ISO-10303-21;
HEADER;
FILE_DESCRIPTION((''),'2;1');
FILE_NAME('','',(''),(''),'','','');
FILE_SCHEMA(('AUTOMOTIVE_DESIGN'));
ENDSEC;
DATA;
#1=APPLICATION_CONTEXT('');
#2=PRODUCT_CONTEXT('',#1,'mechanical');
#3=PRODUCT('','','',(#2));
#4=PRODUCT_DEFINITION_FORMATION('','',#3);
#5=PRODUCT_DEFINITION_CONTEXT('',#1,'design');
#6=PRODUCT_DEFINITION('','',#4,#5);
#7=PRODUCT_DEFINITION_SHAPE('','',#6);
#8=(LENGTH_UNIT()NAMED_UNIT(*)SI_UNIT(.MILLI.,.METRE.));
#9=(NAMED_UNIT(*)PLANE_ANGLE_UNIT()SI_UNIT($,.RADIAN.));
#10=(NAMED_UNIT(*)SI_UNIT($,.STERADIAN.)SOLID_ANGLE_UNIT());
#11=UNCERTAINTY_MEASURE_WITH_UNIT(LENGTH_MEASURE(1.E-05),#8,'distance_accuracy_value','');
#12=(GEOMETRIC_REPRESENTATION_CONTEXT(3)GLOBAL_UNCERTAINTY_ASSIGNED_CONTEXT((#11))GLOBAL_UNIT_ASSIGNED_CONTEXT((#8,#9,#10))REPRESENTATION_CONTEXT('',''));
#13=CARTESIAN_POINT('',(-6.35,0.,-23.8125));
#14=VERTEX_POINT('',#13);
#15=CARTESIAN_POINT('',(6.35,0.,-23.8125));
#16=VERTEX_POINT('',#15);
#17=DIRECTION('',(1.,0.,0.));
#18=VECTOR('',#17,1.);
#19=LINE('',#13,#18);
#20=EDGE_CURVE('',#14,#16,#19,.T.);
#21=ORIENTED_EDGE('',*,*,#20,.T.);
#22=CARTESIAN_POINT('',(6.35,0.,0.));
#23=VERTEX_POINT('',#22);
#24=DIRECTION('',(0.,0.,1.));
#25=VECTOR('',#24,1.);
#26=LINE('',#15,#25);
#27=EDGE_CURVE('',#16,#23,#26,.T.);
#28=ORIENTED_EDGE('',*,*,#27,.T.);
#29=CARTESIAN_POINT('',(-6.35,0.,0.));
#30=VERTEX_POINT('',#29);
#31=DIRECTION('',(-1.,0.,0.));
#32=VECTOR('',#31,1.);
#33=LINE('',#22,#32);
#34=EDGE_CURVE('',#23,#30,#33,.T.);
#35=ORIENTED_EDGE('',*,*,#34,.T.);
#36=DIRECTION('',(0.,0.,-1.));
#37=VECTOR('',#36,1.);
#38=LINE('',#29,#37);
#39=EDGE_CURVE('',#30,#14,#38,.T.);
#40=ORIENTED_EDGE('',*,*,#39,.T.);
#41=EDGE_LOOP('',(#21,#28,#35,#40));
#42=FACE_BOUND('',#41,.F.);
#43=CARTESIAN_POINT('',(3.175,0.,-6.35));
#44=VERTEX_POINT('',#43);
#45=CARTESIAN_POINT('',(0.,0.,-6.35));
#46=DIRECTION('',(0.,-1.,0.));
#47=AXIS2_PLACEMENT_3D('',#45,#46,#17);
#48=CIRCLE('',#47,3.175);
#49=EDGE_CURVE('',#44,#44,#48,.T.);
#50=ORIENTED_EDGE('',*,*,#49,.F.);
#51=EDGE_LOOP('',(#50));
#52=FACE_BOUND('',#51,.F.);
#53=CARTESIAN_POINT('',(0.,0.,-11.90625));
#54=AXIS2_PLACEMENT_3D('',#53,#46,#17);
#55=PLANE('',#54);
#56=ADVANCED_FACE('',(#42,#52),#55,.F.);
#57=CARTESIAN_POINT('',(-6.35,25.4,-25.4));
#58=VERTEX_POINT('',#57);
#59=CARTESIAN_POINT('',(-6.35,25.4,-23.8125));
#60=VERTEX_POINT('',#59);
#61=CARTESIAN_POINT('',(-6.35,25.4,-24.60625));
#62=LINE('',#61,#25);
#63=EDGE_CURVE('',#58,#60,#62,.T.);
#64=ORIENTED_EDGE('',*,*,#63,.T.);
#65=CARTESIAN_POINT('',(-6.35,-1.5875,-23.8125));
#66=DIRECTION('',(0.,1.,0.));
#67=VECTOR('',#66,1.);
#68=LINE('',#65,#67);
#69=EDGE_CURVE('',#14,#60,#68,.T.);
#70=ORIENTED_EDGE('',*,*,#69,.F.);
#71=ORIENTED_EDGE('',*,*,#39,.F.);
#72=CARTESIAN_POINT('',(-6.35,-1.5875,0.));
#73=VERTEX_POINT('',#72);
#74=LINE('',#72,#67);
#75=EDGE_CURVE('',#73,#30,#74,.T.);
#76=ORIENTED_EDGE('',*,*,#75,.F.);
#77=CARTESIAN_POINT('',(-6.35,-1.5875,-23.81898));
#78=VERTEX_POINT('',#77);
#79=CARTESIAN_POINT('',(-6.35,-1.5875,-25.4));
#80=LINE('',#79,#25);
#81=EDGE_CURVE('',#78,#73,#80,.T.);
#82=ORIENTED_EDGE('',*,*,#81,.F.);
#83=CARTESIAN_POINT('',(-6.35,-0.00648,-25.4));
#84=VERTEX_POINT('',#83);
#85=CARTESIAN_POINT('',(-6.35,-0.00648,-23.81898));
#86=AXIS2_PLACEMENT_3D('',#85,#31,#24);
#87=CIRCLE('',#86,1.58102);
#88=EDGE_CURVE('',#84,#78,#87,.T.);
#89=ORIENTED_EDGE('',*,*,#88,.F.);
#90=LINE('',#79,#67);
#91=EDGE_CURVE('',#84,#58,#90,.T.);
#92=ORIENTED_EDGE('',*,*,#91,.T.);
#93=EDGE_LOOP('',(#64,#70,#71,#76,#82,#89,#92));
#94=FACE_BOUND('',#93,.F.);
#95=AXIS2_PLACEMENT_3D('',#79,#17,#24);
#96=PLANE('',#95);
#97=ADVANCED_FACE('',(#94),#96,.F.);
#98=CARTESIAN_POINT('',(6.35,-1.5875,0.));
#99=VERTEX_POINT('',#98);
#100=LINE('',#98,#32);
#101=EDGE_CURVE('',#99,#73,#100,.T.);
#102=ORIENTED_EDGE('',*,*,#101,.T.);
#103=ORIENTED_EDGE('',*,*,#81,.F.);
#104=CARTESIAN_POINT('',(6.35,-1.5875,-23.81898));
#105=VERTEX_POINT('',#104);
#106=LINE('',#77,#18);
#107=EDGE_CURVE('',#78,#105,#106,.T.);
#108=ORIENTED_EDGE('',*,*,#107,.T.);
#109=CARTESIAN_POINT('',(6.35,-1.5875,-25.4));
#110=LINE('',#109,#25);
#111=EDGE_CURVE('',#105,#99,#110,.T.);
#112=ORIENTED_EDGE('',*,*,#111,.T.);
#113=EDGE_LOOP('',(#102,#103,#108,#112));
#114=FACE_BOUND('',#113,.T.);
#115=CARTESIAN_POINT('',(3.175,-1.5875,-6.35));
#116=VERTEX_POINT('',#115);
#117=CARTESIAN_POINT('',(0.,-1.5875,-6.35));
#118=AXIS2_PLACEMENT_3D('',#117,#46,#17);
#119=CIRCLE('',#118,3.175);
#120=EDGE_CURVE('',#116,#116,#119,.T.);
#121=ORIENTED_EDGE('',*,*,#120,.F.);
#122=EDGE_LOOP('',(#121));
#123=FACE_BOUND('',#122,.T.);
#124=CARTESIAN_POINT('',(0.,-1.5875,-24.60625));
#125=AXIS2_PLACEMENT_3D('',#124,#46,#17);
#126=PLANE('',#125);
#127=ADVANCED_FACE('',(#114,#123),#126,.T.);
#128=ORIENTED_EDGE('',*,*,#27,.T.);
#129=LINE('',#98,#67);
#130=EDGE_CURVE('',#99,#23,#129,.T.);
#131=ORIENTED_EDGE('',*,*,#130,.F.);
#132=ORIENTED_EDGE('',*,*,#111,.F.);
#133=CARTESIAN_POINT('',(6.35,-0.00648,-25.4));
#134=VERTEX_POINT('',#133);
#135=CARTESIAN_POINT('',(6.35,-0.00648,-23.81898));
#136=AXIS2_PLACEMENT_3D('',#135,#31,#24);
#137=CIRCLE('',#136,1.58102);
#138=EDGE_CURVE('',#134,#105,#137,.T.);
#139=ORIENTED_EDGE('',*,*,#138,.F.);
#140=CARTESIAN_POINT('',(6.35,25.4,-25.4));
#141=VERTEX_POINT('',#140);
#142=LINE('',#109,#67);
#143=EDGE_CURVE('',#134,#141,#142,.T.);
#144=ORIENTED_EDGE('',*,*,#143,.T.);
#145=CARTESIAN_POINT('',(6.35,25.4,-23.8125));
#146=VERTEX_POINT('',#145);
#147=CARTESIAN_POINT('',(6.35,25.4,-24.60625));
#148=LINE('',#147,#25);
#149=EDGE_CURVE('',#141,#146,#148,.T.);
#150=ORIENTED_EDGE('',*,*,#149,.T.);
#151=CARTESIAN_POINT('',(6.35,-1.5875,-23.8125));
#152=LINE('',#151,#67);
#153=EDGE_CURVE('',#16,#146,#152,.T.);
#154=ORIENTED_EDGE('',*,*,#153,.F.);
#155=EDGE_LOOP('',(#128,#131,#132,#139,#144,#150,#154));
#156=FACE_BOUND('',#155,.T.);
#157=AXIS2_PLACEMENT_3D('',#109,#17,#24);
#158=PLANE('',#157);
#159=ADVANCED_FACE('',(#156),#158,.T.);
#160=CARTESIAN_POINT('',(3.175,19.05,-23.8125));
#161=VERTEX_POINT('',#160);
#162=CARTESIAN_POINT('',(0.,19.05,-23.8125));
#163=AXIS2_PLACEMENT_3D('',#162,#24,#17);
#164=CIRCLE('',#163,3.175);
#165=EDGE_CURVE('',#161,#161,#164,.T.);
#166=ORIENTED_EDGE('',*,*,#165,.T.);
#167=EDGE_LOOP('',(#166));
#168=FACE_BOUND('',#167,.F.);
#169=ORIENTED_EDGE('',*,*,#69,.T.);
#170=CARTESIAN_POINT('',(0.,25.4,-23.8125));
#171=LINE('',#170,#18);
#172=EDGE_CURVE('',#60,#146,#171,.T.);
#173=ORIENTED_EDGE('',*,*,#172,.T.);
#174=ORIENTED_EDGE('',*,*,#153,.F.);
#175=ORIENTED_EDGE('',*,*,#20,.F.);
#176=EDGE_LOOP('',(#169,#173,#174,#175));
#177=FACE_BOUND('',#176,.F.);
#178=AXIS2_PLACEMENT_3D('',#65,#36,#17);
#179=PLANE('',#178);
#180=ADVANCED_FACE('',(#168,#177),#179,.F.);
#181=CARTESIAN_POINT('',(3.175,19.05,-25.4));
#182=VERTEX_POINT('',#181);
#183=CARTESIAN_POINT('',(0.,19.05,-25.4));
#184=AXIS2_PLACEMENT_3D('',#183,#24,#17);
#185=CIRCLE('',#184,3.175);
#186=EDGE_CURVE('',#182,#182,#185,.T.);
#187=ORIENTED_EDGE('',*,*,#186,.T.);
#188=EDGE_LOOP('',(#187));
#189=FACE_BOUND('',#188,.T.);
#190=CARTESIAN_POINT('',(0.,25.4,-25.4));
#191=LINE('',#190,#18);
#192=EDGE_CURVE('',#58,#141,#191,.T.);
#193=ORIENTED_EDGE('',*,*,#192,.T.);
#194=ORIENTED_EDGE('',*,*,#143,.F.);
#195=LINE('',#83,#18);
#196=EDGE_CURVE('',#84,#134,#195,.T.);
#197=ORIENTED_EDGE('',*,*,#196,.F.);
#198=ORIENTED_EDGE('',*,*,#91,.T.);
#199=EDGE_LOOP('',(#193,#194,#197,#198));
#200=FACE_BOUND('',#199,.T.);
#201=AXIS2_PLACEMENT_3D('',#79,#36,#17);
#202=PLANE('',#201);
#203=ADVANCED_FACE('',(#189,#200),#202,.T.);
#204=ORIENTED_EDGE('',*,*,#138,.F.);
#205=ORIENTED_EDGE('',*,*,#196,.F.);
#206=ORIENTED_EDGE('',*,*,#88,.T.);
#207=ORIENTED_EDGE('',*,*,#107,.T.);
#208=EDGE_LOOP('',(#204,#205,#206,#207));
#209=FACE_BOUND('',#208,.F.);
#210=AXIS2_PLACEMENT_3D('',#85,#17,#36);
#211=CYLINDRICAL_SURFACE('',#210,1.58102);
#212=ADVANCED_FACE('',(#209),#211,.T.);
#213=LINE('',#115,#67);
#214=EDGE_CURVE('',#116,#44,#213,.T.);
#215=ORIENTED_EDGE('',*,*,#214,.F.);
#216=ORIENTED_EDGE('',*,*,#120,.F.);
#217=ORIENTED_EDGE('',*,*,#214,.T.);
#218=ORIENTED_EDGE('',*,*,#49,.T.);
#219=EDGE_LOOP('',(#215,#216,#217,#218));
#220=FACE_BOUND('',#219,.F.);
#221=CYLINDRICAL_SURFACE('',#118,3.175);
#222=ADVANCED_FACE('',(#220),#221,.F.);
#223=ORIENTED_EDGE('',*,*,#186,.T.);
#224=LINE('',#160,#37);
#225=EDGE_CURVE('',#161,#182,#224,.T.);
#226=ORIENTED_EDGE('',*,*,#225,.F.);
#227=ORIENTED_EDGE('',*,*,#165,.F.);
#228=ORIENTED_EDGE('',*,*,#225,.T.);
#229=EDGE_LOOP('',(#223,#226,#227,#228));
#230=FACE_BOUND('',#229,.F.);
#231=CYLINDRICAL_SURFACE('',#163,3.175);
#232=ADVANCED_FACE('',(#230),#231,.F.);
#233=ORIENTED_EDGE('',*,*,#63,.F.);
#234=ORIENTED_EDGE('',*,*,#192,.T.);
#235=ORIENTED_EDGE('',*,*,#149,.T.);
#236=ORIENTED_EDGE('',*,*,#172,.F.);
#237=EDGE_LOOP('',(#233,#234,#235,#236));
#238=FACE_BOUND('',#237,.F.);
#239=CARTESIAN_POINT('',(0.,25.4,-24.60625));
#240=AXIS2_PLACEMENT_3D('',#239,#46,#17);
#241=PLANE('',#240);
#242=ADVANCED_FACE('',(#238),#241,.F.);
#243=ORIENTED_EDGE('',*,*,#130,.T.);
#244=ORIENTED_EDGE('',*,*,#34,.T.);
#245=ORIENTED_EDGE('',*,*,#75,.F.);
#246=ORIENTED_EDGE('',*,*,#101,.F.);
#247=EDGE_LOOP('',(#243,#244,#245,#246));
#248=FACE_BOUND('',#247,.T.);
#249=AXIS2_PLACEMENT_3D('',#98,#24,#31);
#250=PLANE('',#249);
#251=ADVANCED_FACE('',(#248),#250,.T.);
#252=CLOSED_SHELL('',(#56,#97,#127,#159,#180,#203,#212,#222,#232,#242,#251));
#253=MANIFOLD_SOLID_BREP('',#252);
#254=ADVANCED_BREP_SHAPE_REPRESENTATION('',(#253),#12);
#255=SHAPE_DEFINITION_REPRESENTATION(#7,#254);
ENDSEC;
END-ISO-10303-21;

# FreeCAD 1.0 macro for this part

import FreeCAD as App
import Part
import Sketcher
from FreeCAD import Vector
Q = App.Units.Quantity


def edges_at(feature, points):
    """Names of the edges that pass closest to the given points."""
    edges = feature.Shape.Edges
    near = lambda p: min(range(len(edges)), key=lambda i: edges[i].distToShape(Part.Vertex(*p))[0])
    return sorted({f"Edge{near(p) + 1}" for p in points})

doc = App.newDocument("Part")
params = doc.addObject("Spreadsheet::Sheet", "Params")
for row, (alias, value) in enumerate([
    ("sketch1_diameter", "0.25 in"),
    ("sketch1_width", "0.5 in"),
    ("sketch1_height", "0.9375 in"),
    ("pad1_length", "0.0625 in"),
    ("sketch2_width", "0.5 in"),
    ("sketch2_height", "0.0625 in"),
    ("pad2_length", "1.0625 in"),
    ("sketch3_diameter", "0.25 in"),
    ("pocket1_length", "0.0625 in"),
    ("fillet_radius", "1.58102 mm"),
], start=1):
    params.set(f"A{row}", alias)
    params.set(f"B{row}", "=" + value)
    params.setAlias(f"B{row}", alias)

body = doc.addObject("PartDesign::Body", "Body")

# Sketch on XZ plane
sketch1 = doc.addObject("Sketcher::SketchObject", "Sketch")
body.addObject(sketch1)
sketch1.AttachmentSupport = (doc.XZ_Plane, [""])
sketch1.MapMode = "FlatFace"
sketch1.AttachmentOffset = App.Placement(Vector(0, 0, 0.0625 * 25.4), App.Rotation())
sketch1.addGeometry([
    Part.LineSegment(Vector(6.3, 0, 0), Vector(-6.3, 0, 0)),  # 0
    Part.LineSegment(Vector(-6.3, 0, 0), Vector(-6.3, -23.8, 0)),  # 1
    Part.LineSegment(Vector(-6.3, -23.8, 0), Vector(6.3, -23.8, 0)),  # 2
    Part.LineSegment(Vector(6.3, -23.8, 0), Vector(6.3, 0, 0)),  # 3
    Part.Circle(Vector(0, -6.3, 0), Vector(0, 0, 1), 3.2),  # 4
], False)
sketch1.addConstraint([
    Sketcher.Constraint("Coincident", 0, 2, 1, 1),
    Sketcher.Constraint("Coincident", 1, 2, 2, 1),
    Sketcher.Constraint("Coincident", 2, 2, 3, 1),
    Sketcher.Constraint("Coincident", 3, 2, 0, 1),
    Sketcher.Constraint("Horizontal", 0),
    Sketcher.Constraint("Vertical", 1),
    Sketcher.Constraint("Horizontal", 2),
    Sketcher.Constraint("Vertical", 3),
    Sketcher.Constraint("Symmetric", 0, 2, 3, 2, -1, 1),
    Sketcher.Constraint("PointOnObject", 4, 3, -2),
    Sketcher.Constraint("Diameter", 4, Q("0.25 in")),
    Sketcher.Constraint("DistanceX", 0, 2, 0, 1, Q("0.5 in")),
    Sketcher.Constraint("DistanceY", 1, 2, 1, 1, Q("0.9375 in")),
    Sketcher.Constraint("DistanceY", 4, 3, -1, 1, Q("0.25 in")),
])
sketch1.setExpression("Constraints[10]", "Params.sketch1_diameter")
sketch1.setExpression("Constraints[11]", "Params.sketch1_width")
sketch1.setExpression("Constraints[12]", "Params.sketch1_height")
pad1 = doc.addObject("PartDesign::Pad", "Pad")
body.addObject(pad1)
pad1.Profile = sketch1
pad1.setExpression("Length", "Params.pad1_length")
pad1.Reversed = True

# Sketch on XZ plane
sketch2 = doc.addObject("Sketcher::SketchObject", "Sketch001")
body.addObject(sketch2)
sketch2.AttachmentSupport = (doc.XZ_Plane, [""])
sketch2.MapMode = "FlatFace"
sketch2.AttachmentOffset = App.Placement(Vector(0, 0, 0.0625 * 25.4), App.Rotation())
sketch2.addGeometry([
    Part.LineSegment(Vector(-6.3, -23.8, 0), Vector(-6.3, -25.4, 0)),
    Part.LineSegment(Vector(-6.3, -25.4, 0), Vector(6.3, -25.4, 0)),
    Part.LineSegment(Vector(6.3, -25.4, 0), Vector(6.3, -23.8, 0)),
    Part.LineSegment(Vector(6.3, -23.8, 0), Vector(-6.3, -23.8, 0)),
], False)
sketch2.addConstraint([
    Sketcher.Constraint("Coincident", 0, 2, 1, 1),
    Sketcher.Constraint("Coincident", 1, 2, 2, 1),
    Sketcher.Constraint("Coincident", 2, 2, 3, 1),
    Sketcher.Constraint("Coincident", 3, 2, 0, 1),
    Sketcher.Constraint("Vertical", 0),
    Sketcher.Constraint("Horizontal", 1),
    Sketcher.Constraint("Vertical", 2),
    Sketcher.Constraint("Horizontal", 3),
    Sketcher.Constraint("DistanceX", 1, 1, 1, 2, Q("0.5 in")),
    Sketcher.Constraint("DistanceY", 0, 2, -1, 1, Q("1 in")),
    Sketcher.Constraint("DistanceY", 0, 2, 0, 1, Q("0.0625 in")),
    Sketcher.Constraint("DistanceX", 0, 2, -1, 1, Q("0.25 in")),
])
sketch2.setExpression("Constraints[8]", "Params.sketch2_width")
sketch2.setExpression("Constraints[10]", "Params.sketch2_height")
pad2 = doc.addObject("PartDesign::Pad", "Pad001")
body.addObject(pad2)
pad2.Profile = sketch2
pad2.setExpression("Length", "Params.pad2_length")
pad2.Reversed = True

# Sketch on XY plane
sketch3 = doc.addObject("Sketcher::SketchObject", "Sketch002")
body.addObject(sketch3)
sketch3.AttachmentSupport = (doc.XY_Plane, [""])
sketch3.MapMode = "FlatFace"
sketch3.AttachmentOffset = App.Placement(Vector(0, 0, -0.9375 * 25.4), App.Rotation())
sketch3.addGeometry(Part.Circle(Vector(0, 19.1, 0), Vector(0, 0, 1), 3.2), False)
sketch3.addConstraint([
    Sketcher.Constraint("PointOnObject", 0, 3, -2),
    Sketcher.Constraint("Diameter", 0, Q("0.25 in")),
    Sketcher.Constraint("DistanceY", -1, 1, 0, 3, Q("0.75 in")),
])
sketch3.setExpression("Constraints[1]", "Params.sketch3_diameter")
pocket1 = doc.addObject("PartDesign::Pocket", "Pocket")
body.addObject(pocket1)
pocket1.Profile = sketch3
pocket1.setExpression("Length", "Params.pocket1_length")
doc.recompute()

fillet = doc.addObject("PartDesign::Fillet", "Fillet")
body.addObject(fillet)
fillet.Base = (pocket1, edges_at(pocket1, [(0, -1.587, -25.4)]))
fillet.setExpression("Radius", "Params.fillet_radius")

doc.recompute()
